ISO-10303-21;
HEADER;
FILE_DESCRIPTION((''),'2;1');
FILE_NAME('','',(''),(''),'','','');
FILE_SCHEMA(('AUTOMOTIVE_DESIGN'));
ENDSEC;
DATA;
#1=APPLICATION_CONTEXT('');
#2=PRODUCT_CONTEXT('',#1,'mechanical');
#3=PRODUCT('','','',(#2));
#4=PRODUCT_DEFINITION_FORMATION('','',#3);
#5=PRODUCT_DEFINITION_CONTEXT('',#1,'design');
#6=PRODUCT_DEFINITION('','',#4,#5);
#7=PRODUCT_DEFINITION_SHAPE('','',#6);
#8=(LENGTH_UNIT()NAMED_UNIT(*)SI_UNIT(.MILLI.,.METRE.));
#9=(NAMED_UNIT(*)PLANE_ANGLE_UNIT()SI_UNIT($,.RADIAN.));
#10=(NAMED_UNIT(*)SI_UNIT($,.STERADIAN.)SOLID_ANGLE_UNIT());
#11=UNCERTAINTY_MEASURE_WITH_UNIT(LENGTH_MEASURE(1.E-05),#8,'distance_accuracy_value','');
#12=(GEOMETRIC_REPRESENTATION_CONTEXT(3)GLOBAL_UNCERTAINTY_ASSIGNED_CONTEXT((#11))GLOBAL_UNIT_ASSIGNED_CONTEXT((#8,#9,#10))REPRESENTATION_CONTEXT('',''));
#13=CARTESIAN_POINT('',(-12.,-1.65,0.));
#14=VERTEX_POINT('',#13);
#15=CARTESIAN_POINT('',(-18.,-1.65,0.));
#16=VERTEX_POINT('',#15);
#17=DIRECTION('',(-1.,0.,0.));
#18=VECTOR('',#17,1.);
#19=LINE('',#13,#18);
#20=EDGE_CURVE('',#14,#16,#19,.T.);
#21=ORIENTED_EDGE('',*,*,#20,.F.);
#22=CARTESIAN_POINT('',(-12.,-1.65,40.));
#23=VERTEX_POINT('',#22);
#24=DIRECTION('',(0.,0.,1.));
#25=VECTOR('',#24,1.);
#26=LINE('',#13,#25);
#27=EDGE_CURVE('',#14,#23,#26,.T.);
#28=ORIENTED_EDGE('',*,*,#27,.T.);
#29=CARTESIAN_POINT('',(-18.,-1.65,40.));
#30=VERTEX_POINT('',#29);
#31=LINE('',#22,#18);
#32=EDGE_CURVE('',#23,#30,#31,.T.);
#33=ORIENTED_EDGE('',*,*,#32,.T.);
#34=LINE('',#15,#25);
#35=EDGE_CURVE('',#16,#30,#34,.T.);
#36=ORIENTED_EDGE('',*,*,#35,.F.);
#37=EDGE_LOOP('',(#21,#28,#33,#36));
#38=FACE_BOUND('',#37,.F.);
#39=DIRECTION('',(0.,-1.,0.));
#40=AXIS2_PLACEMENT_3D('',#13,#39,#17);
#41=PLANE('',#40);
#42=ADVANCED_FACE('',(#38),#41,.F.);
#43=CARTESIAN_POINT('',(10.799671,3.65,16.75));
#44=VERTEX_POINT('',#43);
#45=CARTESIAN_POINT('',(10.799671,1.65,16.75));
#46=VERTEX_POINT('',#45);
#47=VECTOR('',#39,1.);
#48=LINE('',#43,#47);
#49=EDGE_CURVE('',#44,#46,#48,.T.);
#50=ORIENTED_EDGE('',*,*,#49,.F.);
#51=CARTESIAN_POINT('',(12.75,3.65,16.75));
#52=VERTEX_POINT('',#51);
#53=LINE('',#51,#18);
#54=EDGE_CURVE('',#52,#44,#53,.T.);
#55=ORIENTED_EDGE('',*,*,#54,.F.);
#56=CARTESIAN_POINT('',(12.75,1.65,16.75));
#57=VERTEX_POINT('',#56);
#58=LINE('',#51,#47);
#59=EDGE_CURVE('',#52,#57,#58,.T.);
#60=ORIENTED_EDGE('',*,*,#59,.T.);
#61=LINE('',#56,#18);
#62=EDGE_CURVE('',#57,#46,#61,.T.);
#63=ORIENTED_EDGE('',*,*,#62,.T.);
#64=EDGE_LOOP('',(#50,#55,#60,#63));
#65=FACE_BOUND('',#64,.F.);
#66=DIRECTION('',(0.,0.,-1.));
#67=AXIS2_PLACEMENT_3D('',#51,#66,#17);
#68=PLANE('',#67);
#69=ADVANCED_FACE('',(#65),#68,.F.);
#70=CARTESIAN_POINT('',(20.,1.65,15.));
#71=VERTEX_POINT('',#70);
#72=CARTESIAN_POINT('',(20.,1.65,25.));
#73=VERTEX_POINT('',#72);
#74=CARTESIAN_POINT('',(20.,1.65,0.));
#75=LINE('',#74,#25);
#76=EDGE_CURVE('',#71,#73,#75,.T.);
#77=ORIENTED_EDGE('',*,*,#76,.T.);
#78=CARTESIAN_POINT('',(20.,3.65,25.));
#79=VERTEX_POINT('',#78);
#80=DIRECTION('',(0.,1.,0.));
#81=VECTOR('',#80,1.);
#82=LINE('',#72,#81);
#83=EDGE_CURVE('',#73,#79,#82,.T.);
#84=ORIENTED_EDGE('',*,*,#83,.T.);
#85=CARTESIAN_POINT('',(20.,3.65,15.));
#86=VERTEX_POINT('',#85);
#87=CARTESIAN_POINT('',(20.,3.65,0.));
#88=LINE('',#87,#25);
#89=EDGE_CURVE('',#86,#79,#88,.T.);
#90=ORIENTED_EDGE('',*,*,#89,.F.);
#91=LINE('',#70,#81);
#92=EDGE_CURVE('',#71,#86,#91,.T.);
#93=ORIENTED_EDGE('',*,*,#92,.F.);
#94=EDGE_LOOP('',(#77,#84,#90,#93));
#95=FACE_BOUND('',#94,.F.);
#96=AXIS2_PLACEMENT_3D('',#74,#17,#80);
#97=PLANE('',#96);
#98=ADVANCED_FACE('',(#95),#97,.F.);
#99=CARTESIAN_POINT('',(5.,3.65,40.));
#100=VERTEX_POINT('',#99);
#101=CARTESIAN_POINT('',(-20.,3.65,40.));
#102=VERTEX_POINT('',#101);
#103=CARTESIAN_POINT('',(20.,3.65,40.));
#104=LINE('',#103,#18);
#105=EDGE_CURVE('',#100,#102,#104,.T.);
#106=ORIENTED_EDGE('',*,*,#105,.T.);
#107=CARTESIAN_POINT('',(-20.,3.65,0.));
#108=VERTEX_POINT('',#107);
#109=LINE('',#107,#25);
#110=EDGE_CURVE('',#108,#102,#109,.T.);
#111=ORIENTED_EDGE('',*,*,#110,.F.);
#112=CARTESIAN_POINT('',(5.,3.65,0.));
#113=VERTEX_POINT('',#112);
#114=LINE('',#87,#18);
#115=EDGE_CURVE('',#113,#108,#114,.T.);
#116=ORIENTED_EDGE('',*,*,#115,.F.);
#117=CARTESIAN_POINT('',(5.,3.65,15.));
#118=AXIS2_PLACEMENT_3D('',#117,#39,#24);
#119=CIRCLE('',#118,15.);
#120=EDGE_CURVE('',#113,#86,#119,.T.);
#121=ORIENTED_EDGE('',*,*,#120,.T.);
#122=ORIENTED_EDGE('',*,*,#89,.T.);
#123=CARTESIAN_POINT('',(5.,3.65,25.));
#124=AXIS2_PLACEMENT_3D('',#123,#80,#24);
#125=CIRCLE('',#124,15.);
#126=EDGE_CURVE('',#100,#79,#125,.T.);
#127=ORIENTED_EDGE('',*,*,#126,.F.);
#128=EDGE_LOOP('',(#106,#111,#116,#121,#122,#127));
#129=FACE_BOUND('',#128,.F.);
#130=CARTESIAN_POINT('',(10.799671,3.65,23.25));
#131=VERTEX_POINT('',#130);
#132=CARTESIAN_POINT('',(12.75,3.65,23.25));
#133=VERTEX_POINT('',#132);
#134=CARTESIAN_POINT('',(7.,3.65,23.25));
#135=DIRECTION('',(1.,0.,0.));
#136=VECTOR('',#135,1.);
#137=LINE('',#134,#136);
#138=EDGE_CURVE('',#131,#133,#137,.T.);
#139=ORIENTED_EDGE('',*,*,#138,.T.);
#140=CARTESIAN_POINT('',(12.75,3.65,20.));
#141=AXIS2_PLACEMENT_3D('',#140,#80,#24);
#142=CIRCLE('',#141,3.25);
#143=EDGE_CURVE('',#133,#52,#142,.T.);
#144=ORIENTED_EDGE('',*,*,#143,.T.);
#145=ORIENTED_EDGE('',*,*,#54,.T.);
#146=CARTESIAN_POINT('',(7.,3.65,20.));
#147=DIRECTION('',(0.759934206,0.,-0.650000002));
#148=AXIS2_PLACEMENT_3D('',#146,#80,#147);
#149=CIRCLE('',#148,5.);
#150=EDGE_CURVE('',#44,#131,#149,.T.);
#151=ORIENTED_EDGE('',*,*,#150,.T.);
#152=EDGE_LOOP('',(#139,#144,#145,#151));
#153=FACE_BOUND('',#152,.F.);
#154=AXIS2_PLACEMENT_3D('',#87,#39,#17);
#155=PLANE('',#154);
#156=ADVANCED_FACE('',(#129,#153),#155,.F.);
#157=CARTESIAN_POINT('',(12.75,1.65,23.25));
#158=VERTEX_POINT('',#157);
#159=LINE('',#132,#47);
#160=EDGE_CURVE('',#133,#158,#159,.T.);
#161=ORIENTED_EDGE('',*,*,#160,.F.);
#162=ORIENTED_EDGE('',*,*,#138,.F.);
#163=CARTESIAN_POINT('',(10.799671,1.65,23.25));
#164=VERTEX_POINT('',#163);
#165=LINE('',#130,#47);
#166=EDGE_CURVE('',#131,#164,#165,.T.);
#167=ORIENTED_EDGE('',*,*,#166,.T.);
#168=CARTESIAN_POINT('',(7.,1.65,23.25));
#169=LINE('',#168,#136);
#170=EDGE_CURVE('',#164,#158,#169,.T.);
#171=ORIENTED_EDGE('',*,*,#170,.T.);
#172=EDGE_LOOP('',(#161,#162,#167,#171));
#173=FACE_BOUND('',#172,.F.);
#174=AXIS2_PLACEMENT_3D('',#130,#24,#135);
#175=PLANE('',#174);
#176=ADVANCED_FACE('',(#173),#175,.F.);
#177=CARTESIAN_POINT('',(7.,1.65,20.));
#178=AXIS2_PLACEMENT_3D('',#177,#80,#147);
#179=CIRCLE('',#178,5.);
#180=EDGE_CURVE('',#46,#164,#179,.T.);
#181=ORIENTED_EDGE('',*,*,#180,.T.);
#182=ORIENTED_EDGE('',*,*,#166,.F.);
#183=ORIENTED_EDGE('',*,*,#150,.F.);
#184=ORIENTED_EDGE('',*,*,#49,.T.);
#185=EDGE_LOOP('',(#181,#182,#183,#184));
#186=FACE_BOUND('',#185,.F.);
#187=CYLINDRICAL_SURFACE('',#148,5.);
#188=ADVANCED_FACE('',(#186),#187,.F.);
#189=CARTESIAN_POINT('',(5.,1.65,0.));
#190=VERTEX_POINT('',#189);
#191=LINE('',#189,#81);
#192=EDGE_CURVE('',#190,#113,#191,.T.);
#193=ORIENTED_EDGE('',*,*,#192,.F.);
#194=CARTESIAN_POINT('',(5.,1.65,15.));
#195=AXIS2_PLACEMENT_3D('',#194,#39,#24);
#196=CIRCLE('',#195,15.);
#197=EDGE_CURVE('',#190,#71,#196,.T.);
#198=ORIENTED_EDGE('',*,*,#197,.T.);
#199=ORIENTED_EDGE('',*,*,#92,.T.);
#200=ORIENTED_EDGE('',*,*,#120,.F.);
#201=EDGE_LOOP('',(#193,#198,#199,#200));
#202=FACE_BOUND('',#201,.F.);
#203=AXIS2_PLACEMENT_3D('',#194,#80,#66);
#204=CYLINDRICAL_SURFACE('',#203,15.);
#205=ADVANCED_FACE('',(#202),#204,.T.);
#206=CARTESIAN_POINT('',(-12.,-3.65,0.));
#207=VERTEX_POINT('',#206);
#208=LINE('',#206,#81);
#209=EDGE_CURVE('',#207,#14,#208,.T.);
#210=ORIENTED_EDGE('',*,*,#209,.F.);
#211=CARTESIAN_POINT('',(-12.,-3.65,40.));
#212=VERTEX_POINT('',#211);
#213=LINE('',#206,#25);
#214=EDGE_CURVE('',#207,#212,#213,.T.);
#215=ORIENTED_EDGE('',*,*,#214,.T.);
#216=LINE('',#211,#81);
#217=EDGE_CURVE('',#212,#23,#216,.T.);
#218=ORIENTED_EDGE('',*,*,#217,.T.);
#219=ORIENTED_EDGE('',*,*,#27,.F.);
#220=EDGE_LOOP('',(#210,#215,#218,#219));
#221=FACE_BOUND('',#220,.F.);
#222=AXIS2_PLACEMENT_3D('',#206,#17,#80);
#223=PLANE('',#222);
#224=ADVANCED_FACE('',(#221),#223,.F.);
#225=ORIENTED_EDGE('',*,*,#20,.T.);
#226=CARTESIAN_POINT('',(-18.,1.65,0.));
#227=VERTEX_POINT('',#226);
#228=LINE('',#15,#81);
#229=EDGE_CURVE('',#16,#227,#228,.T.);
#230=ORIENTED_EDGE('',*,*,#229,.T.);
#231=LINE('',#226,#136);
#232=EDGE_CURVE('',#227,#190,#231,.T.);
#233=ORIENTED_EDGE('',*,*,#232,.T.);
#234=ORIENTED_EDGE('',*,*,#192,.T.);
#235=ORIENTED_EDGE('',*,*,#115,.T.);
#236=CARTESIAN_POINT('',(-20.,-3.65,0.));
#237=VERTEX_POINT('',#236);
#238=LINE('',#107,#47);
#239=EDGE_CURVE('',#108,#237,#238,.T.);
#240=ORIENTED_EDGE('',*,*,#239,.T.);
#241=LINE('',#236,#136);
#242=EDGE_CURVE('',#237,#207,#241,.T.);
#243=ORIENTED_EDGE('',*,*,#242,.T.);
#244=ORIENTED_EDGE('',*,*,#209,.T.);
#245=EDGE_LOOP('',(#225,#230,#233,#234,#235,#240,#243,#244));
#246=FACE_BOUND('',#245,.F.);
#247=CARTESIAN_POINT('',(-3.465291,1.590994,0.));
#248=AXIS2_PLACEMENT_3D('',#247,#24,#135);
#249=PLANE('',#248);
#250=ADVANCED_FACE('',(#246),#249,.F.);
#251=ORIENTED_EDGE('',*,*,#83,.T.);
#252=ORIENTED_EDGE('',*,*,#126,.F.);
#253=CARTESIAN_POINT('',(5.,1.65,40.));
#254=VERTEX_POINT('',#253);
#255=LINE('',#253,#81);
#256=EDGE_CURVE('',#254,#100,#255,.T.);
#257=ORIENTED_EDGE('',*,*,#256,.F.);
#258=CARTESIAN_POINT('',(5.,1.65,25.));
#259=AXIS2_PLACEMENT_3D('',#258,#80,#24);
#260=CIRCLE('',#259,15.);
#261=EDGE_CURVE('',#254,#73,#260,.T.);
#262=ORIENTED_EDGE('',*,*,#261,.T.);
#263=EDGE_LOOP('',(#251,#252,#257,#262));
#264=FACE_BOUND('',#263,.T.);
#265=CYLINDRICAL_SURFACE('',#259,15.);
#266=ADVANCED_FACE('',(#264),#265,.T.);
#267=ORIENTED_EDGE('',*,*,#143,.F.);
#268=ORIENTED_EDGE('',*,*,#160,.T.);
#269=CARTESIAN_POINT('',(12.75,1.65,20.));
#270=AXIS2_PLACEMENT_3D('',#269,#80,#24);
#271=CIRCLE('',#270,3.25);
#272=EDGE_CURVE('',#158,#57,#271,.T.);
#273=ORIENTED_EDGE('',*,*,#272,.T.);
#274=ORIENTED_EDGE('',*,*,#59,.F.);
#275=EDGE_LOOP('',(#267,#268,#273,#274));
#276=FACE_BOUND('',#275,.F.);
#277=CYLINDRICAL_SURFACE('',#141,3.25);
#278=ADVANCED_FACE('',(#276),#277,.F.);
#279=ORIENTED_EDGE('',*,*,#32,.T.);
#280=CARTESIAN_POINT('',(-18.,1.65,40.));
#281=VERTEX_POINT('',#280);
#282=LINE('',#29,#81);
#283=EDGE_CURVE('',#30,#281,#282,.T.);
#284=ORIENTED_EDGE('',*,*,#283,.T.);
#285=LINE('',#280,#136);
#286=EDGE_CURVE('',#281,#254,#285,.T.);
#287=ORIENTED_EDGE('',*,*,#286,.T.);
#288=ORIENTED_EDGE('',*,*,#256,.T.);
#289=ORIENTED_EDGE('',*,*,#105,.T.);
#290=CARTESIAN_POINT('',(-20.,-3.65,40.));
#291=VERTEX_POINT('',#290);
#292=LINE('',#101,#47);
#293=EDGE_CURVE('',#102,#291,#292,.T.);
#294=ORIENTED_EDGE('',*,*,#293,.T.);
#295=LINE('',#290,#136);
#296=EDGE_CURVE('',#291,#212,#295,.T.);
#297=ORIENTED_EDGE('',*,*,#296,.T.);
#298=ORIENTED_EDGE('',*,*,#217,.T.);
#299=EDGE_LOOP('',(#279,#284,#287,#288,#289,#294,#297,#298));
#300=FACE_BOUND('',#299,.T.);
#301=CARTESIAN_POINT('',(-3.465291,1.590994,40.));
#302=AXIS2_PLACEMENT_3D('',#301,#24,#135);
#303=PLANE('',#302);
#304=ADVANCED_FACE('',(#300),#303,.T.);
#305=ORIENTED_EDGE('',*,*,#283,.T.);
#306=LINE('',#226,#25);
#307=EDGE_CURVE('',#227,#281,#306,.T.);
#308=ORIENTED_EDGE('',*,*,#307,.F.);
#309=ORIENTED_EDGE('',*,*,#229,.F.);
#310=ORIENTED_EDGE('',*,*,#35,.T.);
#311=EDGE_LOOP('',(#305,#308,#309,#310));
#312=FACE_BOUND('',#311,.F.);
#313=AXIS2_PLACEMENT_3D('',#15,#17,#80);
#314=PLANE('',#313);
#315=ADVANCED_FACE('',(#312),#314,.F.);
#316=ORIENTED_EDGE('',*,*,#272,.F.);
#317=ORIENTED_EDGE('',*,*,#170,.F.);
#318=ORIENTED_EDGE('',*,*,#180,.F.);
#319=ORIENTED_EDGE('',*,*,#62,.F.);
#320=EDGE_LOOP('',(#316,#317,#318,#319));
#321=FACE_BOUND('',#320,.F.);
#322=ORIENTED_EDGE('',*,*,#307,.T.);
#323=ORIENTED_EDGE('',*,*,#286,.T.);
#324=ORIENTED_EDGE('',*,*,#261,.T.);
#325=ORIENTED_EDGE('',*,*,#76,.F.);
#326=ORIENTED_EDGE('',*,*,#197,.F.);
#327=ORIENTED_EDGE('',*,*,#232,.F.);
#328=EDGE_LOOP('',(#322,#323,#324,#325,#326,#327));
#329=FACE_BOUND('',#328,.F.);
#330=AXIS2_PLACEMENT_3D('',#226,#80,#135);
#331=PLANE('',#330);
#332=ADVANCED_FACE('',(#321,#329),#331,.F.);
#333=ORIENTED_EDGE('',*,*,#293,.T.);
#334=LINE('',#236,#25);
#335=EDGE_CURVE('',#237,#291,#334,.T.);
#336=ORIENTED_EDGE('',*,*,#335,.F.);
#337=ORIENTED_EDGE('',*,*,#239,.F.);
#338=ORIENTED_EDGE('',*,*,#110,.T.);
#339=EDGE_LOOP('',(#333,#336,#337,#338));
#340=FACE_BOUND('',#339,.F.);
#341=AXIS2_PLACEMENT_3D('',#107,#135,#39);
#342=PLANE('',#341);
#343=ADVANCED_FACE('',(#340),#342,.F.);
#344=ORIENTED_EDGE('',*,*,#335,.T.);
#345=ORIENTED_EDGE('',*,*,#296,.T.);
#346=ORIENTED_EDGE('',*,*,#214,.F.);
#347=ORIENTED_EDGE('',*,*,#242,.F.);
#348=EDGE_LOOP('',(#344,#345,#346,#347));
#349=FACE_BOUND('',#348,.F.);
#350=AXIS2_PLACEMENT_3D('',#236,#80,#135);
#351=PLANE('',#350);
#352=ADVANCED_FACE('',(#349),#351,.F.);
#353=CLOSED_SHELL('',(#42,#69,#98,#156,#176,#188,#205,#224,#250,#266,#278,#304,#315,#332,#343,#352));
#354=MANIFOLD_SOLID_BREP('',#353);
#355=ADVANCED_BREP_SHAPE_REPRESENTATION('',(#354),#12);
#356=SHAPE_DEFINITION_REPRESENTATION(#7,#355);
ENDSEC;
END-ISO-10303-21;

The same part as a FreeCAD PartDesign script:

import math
import FreeCAD as App
import Part
import Sketcher
from FreeCAD import Vector


def edges_at(feature, points):
    """Names of the edges that pass closest to the given points."""
    edges = feature.Shape.Edges
    near = lambda p: min(range(len(edges)), key=lambda i: edges[i].distToShape(Part.Vertex(*p))[0])
    return sorted({f"Edge{near(p) + 1}" for p in points})


def add_polygon(sketch, points):
    """Adds a closed chain of lines whose ends are joined by coincident constraints."""
    first, n = sketch.GeometryCount, len(points)
    for a, b in zip(points, points[1:] + points[:1]):
        sketch.addGeometry(Part.LineSegment(App.Vector(*a, 0), App.Vector(*b, 0)), False)
    for i in range(n):
        sketch.addConstraint(Sketcher.Constraint("Coincident", first + i, 2, first + (i + 1) % n, 1))

doc = App.newDocument("Part")
body = doc.addObject("PartDesign::Body", "Body")

sketch1 = body.newObject("Sketcher::SketchObject", "Sketch")
sketch1.AttachmentSupport = (doc.getObject("XY_Plane"), [""])
sketch1.MapMode = "FlatFace"
add_polygon(sketch1, [(-20, -3.6), (-12, -3.6), (-12, -1.6), (-18, -1.6), (-18, 1.6), (20, 1.6), (20, 3.6), (-20, 3.6)])
sketch1.addConstraint([
    Sketcher.Constraint("Horizontal", 0),
    Sketcher.Constraint("Vertical", 1),
    Sketcher.Constraint("Horizontal", 2),
    Sketcher.Constraint("Vertical", 3),
    Sketcher.Constraint("Horizontal", 4),
    Sketcher.Constraint("Vertical", 5),
    Sketcher.Constraint("Horizontal", 6),
    Sketcher.Constraint("Vertical", 7),
    Sketcher.Constraint("Symmetric", 5, 2, 7, 2, -1, 1),
    Sketcher.Constraint("Equal", 1, 5),
    Sketcher.Constraint("DistanceX", 0, 1, 0, 2, 8.0),
    Sketcher.Constraint("DistanceX", 2, 2, 2, 1, 6.0),
    Sketcher.Constraint("DistanceX", 4, 1, 4, 2, 38.0),
    Sketcher.Constraint("DistanceY", 1, 1, 1, 2, 2.0),
    Sketcher.Constraint("DistanceY", 3, 1, 3, 2, 3.3),
])
pad1 = body.newObject("PartDesign::Pad", "Pad")
pad1.Profile = sketch1
pad1.Length = 40

sketch2 = body.newObject("Sketcher::SketchObject", "Sketch001")
sketch2.AttachmentSupport = (doc.getObject("XZ_Plane"), [""])
sketch2.MapMode = "FlatFace"
sketch2.AttachmentOffset = App.Placement(Vector(0, 0, -3.65), App.Rotation())
sketch2.addGeometry([
    Part.LineSegment(Vector(12.8, 16.8, 0), Vector(10.8, 16.8, 0)),
    Part.ArcOfCircle(Part.Circle(Vector(7, 20, 0), Vector(0, 0, 1), 5), math.radians(41), math.radians(319)),
    Part.LineSegment(Vector(10.8, 23.2, 0), Vector(12.8, 23.2, 0)),
    Part.ArcOfCircle(Part.Circle(Vector(12.8, 20, 0), Vector(0, 0, 1), 3.2), math.radians(-90), math.radians(90)),
], False)
sketch2.addConstraint([
    Sketcher.Constraint("Coincident", 0, 2, 1, 2),
    Sketcher.Constraint("Coincident", 1, 1, 2, 1),
    Sketcher.Constraint("Tangent", 2, 2, 3, 2),
    Sketcher.Constraint("Tangent", 3, 1, 0, 1),
    Sketcher.Constraint("Horizontal", 0),
    Sketcher.Constraint("Horizontal", 2),
    Sketcher.Constraint("Horizontal", 1, 3, 3, 3),
    Sketcher.Constraint("Radius", 1, 5.0),
    Sketcher.Constraint("Radius", 3, 3.25),
    Sketcher.Constraint("DistanceX", -1, 1, 1, 3, 7.0),
    Sketcher.Constraint("DistanceY", -1, 1, 1, 3, 20.0),
    Sketcher.Constraint("DistanceX", -1, 1, 3, 3, 12.75),
])
pocket1 = body.newObject("PartDesign::Pocket", "Pocket")
pocket1.Profile = sketch2
pocket1.Type = "ThroughAll"
pocket1.Reversed = True
doc.recompute()

fillet = body.newObject("PartDesign::Fillet", "Fillet")
fillet.Base = (pocket1, edges_at(pocket1, [(20, 2.65, 40), (20, 2.65, 0)]))
fillet.Radius = 15

doc.recompute()
